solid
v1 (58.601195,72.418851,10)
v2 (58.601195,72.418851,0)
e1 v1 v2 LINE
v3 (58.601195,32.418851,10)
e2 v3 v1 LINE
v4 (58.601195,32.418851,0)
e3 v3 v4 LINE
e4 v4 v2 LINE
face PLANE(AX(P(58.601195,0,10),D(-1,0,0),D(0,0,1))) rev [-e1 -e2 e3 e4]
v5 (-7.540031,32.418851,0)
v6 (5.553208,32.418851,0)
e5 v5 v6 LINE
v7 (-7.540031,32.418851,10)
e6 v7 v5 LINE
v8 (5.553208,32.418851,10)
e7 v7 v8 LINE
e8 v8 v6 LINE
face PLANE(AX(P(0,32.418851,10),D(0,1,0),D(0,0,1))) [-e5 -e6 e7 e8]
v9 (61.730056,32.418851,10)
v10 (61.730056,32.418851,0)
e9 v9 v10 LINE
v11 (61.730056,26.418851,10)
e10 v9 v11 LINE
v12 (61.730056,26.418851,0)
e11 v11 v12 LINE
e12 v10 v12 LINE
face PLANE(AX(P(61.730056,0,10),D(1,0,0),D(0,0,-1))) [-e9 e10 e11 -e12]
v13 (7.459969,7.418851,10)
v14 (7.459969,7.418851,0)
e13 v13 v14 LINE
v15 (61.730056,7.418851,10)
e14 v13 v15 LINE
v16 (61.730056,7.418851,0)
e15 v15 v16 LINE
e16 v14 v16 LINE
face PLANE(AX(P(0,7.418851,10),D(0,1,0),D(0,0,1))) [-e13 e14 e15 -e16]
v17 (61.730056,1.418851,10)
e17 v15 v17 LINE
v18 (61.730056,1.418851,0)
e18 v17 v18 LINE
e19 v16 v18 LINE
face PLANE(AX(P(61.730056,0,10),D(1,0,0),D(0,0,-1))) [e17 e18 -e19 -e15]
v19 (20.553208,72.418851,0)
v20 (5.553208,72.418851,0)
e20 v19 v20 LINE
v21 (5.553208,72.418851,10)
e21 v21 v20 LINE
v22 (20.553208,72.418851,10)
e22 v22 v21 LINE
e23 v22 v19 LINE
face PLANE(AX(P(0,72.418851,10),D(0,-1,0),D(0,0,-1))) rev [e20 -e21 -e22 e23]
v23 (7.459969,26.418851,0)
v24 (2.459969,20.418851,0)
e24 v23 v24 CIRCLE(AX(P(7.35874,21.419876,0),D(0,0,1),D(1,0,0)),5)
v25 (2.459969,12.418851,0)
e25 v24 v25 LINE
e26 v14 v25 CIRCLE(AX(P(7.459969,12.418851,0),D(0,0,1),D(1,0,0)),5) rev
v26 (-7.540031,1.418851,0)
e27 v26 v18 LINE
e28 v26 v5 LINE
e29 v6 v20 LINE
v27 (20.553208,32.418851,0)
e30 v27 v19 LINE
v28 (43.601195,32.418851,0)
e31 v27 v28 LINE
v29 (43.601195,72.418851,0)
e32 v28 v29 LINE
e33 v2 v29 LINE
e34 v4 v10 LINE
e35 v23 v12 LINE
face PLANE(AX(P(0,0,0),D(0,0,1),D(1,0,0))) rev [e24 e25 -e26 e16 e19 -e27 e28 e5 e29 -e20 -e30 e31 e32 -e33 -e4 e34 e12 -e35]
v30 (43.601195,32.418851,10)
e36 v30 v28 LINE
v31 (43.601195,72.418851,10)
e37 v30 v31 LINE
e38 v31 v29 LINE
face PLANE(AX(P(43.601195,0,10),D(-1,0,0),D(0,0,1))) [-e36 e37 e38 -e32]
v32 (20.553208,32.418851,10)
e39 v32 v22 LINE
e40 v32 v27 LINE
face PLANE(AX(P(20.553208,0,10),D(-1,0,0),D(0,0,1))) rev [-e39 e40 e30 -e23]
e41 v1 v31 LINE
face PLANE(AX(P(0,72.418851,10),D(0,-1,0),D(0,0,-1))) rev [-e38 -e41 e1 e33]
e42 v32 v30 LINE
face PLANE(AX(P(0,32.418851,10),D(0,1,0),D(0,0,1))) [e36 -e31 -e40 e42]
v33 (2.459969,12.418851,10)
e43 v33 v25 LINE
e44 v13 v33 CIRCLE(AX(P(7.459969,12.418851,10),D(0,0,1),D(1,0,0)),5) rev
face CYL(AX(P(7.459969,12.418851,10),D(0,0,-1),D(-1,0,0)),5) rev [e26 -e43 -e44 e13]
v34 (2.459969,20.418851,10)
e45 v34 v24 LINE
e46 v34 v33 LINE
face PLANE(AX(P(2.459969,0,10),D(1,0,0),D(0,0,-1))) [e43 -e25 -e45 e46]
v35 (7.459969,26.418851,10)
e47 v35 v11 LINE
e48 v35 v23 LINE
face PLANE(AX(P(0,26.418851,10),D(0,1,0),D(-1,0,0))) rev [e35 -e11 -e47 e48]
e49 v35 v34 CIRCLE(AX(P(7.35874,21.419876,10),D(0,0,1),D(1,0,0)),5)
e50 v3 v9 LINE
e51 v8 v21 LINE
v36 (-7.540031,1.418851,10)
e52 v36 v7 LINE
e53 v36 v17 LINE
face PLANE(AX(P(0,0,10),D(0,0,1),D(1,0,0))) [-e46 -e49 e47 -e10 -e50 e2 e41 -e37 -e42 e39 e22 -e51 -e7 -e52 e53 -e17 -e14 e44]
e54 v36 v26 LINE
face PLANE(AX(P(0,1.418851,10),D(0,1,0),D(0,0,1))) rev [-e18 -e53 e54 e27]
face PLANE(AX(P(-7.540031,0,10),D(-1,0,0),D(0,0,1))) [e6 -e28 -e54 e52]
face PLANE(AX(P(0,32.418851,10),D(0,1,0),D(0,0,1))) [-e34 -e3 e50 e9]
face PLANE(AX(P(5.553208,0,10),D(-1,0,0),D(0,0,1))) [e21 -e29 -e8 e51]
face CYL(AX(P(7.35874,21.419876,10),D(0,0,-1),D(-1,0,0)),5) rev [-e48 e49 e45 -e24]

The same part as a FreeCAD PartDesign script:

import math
import FreeCAD as App
import Part
import Sketcher

V = App.Vector

doc = App.newDocument("Part")
params = doc.addObject("Spreadsheet::Sheet", "Params")
for row, (alias, value) in enumerate([
    ("sketch1_radius", "5 mm"),
    ("sketch1_width", "15 mm"),
    ("sketch1_height", "8 mm"),
    ("sketch1_height2", "6 mm"),
    ("sketch1_height3", "40 mm"),
    ("pad1_length", "10 mm"),
], start=1):
    params.set(f"A{row}", alias)
    params.set(f"B{row}", "=" + value)
    params.setAlias(f"B{row}", alias)

body = doc.addObject("PartDesign::Body", "Body")

# Sketch on XY plane
sketch1 = body.newObject("Sketcher::SketchObject", "Sketch")
sketch1.AttachmentSupport = (doc.getObject("XY_Plane"), [""])
sketch1.MapMode = "FlatFace"
sketch1.addGeometry(Part.LineSegment(V(61.7, 7.4, 0), V(7.5, 7.4, 0)), False)
sketch1.addGeometry(Part.ArcOfCircle(Part.Circle(V(7.5, 12.4, 0), V(0, 0, 1), 5), math.radians(180), math.radians(270)), False)
sketch1.addGeometry(Part.LineSegment(V(2.5, 12.4, 0), V(2.5, 20.4, 0)), False)
sketch1.addGeometry(Part.ArcOfCircle(Part.Circle(V(7.4, 21.4, 0), V(0, 0, 1), 5), math.radians(89), math.radians(192)), False)
sketch1.addGeometry(Part.LineSegment(V(7.5, 26.4, 0), V(61.7, 26.4, 0)), False)
sketch1.addGeometry(Part.LineSegment(V(61.7, 26.4, 0), V(61.7, 32.4, 0)), False)
sketch1.addGeometry(Part.LineSegment(V(61.7, 32.4, 0), V(58.6, 32.4, 0)), False)
sketch1.addGeometry(Part.LineSegment(V(58.6, 32.4, 0), V(58.6, 72.4, 0)), False)
sketch1.addGeometry(Part.LineSegment(V(58.6, 72.4, 0), V(43.6, 72.4, 0)), False)
sketch1.addGeometry(Part.LineSegment(V(43.6, 72.4, 0), V(43.6, 32.4, 0)), False)
sketch1.addGeometry(Part.LineSegment(V(43.6, 32.4, 0), V(20.6, 32.4, 0)), False)
sketch1.addGeometry(Part.LineSegment(V(20.6, 32.4, 0), V(20.6, 72.4, 0)), False)
sketch1.addGeometry(Part.LineSegment(V(20.6, 72.4, 0), V(5.6, 72.4, 0)), False)
sketch1.addGeometry(Part.LineSegment(V(5.6, 72.4, 0), V(5.6, 32.4, 0)), False)
sketch1.addGeometry(Part.LineSegment(V(5.6, 32.4, 0), V(-7.5, 32.4, 0)), False)
sketch1.addGeometry(Part.LineSegment(V(-7.5, 32.4, 0), V(-7.5, 1.4, 0)), False)
sketch1.addGeometry(Part.LineSegment(V(-7.5, 1.4, 0), V(61.7, 1.4, 0)), False)
sketch1.addGeometry(Part.LineSegment(V(61.7, 1.4, 0), V(61.7, 7.4, 0)), False)
sketch1.addConstraint(Sketcher.Constraint("Tangent", 0, 2, 1, 2))
sketch1.addConstraint(Sketcher.Constraint("Tangent", 1, 1, 2, 1))
sketch1.addConstraint(Sketcher.Constraint("Coincident", 2, 2, 3, 2))
sketch1.addConstraint(Sketcher.Constraint("Coincident", 3, 1, 4, 1))
sketch1.addConstraint(Sketcher.Constraint("Coincident", 4, 2, 5, 1))
sketch1.addConstraint(Sketcher.Constraint("Coincident", 5, 2, 6, 1))
sketch1.addConstraint(Sketcher.Constraint("Coincident", 6, 2, 7, 1))
sketch1.addConstraint(Sketcher.Constraint("Coincident", 7, 2, 8, 1))
sketch1.addConstraint(Sketcher.Constraint("Coincident", 8, 2, 9, 1))
sketch1.addConstraint(Sketcher.Constraint("Coincident", 9, 2, 10, 1))
sketch1.addConstraint(Sketcher.Constraint("Coincident", 10, 2, 11, 1))
sketch1.addConstraint(Sketcher.Constraint("Coincident", 11, 2, 12, 1))
sketch1.addConstraint(Sketcher.Constraint("Coincident", 12, 2, 13, 1))
sketch1.addConstraint(Sketcher.Constraint("Coincident", 13, 2, 14, 1))
sketch1.addConstraint(Sketcher.Constraint("Coincident", 14, 2, 15, 1))
sketch1.addConstraint(Sketcher.Constraint("Coincident", 15, 2, 16, 1))
sketch1.addConstraint(Sketcher.Constraint("Coincident", 16, 2, 17, 1))
sketch1.addConstraint(Sketcher.Constraint("Coincident", 17, 2, 0, 1))
sketch1.addConstraint(Sketcher.Constraint("Horizontal", 0))
sketch1.addConstraint(Sketcher.Constraint("Vertical", 2))
sketch1.addConstraint(Sketcher.Constraint("Horizontal", 4))
sketch1.addConstraint(Sketcher.Constraint("Vertical", 5))
sketch1.addConstraint(Sketcher.Constraint("Horizontal", 6))
sketch1.addConstraint(Sketcher.Constraint("Vertical", 7))
sketch1.addConstraint(Sketcher.Constraint("Horizontal", 8))
sketch1.addConstraint(Sketcher.Constraint("Vertical", 9))
sketch1.addConstraint(Sketcher.Constraint("Horizontal", 10))
sketch1.addConstraint(Sketcher.Constraint("Vertical", 11))
sketch1.addConstraint(Sketcher.Constraint("Horizontal", 12))
sketch1.addConstraint(Sketcher.Constraint("Vertical", 13))
sketch1.addConstraint(Sketcher.Constraint("Horizontal", 14))
sketch1.addConstraint(Sketcher.Constraint("Vertical", 15))
sketch1.addConstraint(Sketcher.Constraint("Horizontal", 16))
sketch1.addConstraint(Sketcher.Constraint("Vertical", 17))
sketch1.addConstraint(Sketcher.Constraint("Equal", 1, 3))
sketch1.addConstraint(Sketcher.Constraint("Horizontal", 6, 2, 9, 2))
sketch1.addConstraint(Sketcher.Constraint("Horizontal", 8, 2, 11, 2))
sketch1.addConstraint(Sketcher.Constraint("Horizontal", 10, 2, 13, 2))
sketch1.addConstraint(Sketcher.Constraint("Vertical", 0, 2, 3, 1))
sketch1.addConstraint(Sketcher.Constraint("Vertical", 5, 2, 16, 2))
sketch1.addConstraint(Sketcher.Constraint("Equal", 8, 12))
sketch1.addConstraint(Sketcher.Constraint("Equal", 5, 17))
sketch1.addConstraint(Sketcher.Constraint("Radius", 1, 5.0))
sketch1.addConstraint(Sketcher.Constraint("DistanceX", 8, 2, 8, 1, 15.0))
sketch1.addConstraint(Sketcher.Constraint("DistanceY", 2, 1, 2, 2, 8.0))
sketch1.addConstraint(Sketcher.Constraint("DistanceY", 5, 1, 5, 2, 6.0))
sketch1.addConstraint(Sketcher.Constraint("DistanceY", 7, 1, 7, 2, 40.0))
sketch1.addConstraint(Sketcher.Constraint("DistanceY", 15, 2, 15, 1, 31.0))
sketch1.addConstraint(Sketcher.Constraint("DistanceX", 14, 2, 2, 2, 10.0))
sketch1.addConstraint(Sketcher.Constraint("DistanceX", 6, 2, 6, 1, 3.128861))
sketch1.addConstraint(Sketcher.Constraint("DistanceX", 14, 2, 14, 1, 13.093239))
sketch1.addConstraint(Sketcher.Constraint("DistanceX", 0, 2, 0, 1, 54.270086))
sketch1.addConstraint(Sketcher.Constraint("DistanceX", -1, 1, 1, 3, 7.459969))
sketch1.addConstraint(Sketcher.Constraint("DistanceY", -1, 1, 1, 3, 12.418851))
sketch1.setExpression("Constraints[42]", "Params.sketch1_radius")
sketch1.setExpression("Constraints[43]", "Params.sketch1_width")
sketch1.setExpression("Constraints[44]", "Params.sketch1_height")
sketch1.setExpression("Constraints[45]", "Params.sketch1_height2")
sketch1.setExpression("Constraints[46]", "Params.sketch1_height3")
pad1 = body.newObject("PartDesign::Pad", "Pad")
pad1.Profile = sketch1
pad1.setExpression("Length", "Params.pad1_length")

doc.recompute()
